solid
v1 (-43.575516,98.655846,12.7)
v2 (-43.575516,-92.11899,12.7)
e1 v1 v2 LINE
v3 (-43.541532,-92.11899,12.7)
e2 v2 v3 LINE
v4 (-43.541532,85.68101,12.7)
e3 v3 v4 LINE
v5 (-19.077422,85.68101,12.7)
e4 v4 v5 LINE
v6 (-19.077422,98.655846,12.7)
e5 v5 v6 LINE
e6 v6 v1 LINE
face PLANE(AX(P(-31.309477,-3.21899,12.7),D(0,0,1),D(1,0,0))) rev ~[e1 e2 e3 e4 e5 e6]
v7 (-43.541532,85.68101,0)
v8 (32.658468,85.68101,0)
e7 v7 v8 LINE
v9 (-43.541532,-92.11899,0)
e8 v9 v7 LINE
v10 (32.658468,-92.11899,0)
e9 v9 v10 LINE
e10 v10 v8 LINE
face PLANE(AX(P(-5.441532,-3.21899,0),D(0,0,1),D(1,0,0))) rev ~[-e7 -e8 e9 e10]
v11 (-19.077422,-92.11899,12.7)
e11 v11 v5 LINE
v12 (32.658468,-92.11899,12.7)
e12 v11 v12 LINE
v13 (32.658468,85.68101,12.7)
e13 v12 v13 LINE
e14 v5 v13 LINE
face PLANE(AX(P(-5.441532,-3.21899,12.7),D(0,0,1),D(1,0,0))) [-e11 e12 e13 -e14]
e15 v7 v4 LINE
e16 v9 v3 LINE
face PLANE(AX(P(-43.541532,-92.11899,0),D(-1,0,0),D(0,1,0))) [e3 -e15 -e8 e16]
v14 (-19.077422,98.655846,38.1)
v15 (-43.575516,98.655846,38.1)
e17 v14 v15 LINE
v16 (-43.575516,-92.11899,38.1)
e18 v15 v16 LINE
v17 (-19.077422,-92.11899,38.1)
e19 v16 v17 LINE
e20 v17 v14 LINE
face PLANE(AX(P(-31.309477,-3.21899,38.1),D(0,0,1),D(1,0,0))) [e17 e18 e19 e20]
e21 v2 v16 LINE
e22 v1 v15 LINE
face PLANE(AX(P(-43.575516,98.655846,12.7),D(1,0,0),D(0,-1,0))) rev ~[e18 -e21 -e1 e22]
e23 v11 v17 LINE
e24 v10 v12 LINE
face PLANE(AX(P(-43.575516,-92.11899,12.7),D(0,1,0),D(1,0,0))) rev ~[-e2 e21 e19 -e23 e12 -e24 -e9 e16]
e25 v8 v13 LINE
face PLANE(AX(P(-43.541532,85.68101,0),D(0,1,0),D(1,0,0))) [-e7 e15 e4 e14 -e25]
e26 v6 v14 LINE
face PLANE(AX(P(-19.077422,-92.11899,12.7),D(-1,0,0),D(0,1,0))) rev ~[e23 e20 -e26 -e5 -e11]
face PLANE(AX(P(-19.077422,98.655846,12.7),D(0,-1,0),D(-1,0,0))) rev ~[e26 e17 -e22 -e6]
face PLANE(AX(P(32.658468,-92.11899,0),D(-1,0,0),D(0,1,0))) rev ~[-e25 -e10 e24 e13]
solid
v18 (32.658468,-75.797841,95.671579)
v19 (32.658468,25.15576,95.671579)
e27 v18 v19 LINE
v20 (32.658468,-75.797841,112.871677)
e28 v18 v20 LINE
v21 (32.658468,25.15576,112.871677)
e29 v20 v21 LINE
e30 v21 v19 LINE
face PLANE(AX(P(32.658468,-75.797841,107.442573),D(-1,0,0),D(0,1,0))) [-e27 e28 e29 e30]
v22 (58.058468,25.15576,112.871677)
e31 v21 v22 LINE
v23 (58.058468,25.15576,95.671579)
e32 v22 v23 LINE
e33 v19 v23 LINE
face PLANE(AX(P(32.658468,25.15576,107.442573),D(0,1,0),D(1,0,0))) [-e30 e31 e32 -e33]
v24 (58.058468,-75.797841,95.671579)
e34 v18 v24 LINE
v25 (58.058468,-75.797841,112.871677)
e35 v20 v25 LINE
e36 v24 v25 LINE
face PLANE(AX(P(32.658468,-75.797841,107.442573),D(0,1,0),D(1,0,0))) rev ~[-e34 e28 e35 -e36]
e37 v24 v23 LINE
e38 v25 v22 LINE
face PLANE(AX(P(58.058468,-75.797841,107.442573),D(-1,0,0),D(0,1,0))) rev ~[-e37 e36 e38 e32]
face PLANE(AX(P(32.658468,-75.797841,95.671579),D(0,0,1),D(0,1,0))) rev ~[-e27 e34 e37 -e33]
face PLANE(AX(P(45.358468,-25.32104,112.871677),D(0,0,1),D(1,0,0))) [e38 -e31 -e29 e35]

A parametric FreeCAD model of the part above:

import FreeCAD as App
import Part
import Sketcher

V = App.Vector
Q = App.Units.Quantity


def add_polygon(sketch, points):
    """Adds a closed chain of lines whose ends are joined by coincident constraints."""
    first, n = sketch.GeometryCount, len(points)
    for a, b in zip(points, points[1:] + points[:1]):
        sketch.addGeometry(Part.LineSegment(App.Vector(*a, 0), App.Vector(*b, 0)), False)
    for i in range(n):
        sketch.addConstraint(Sketcher.Constraint("Coincident", first + i, 2, first + (i + 1) % n, 1))

doc = App.newDocument("Part")
body = doc.addObject("PartDesign::Body", "Body")

# Sketch on XY plane
sketch1 = body.newObject("Sketcher::SketchObject", "Sketch")
sketch1.AttachmentSupport = (doc.getObject("XY_Plane"), [""])
sketch1.MapMode = "FlatFace"
add_polygon(sketch1, [(-43.541532, 85.68101), (-43.541532, -92.11899), (32.658468, -92.11899), (32.658468, 85.68101)])  # lines 0-3
sketch1.addConstraint([
    Sketcher.Constraint("Vertical", 0),
    Sketcher.Constraint("Horizontal", 1),
    Sketcher.Constraint("Vertical", 2),
    Sketcher.Constraint("Horizontal", 3),
    Sketcher.Constraint("DistanceX", 1, 1, 1, 2, Q("3 in")),
    Sketcher.Constraint("DistanceY", 0, 2, 0, 1, Q("7 in")),
    Sketcher.Constraint("DistanceX", 0, 2, -1, 1, 43.541532),
    Sketcher.Constraint("DistanceY", 0, 2, -1, 1, 92.11899),
])
pad1 = body.newObject("PartDesign::Pad", "Pad")
pad1.Profile = sketch1
pad1.Length = Q("0.5 in")

# Sketch on XY plane
sketch2 = body.newObject("Sketcher::SketchObject", "Sketch001")
sketch2.AttachmentSupport = (doc.getObject("XY_Plane"), [""])
sketch2.MapMode = "FlatFace"
sketch2.AttachmentOffset = App.Placement(V(0, 0, 0.5 * 25.4), App.Rotation())
add_polygon(sketch2, [(-19.077422, -92.11899), (-19.077422, 98.655846), (-43.575516, 98.655846), (-43.575516, -92.11899)])  # lines 0-3
sketch2.addConstraint([
    Sketcher.Constraint("Vertical", 0),
    Sketcher.Constraint("Horizontal", 1),
    Sketcher.Constraint("Vertical", 2),
    Sketcher.Constraint("Horizontal", 3),
    Sketcher.Constraint("DistanceX", 1, 2, 1, 1, 24.498094),
    Sketcher.Constraint("DistanceY", 0, 1, 0, 2, 190.774836),
    Sketcher.Constraint("DistanceY", 2, 2, -1, 1, 92.11899),
    Sketcher.Constraint("DistanceX", 0, 2, -1, 1, 19.077422),
])
pad2 = body.newObject("PartDesign::Pad", "Pad001")
pad2.Profile = sketch2
pad2.Length = Q("1 in")
body2 = doc.addObject("PartDesign::Body", "Body001")

# Sketch on YZ plane
sketch3 = body2.newObject("Sketcher::SketchObject", "Sketch002")
sketch3.AttachmentSupport = (doc.getObject("YZ_Plane001"), [""])
sketch3.MapMode = "FlatFace"
sketch3.AttachmentOffset = App.Placement(V(0, 0, 32.658468), App.Rotation())
add_polygon(sketch3, [(-75.797841, 107.442573), (-75.797841, 95.671579), (25.15576, 95.671579), (25.15576, 107.442573)])  # lines 0-3
sketch3.addConstraint([
    Sketcher.Constraint("Vertical", 0),
    Sketcher.Constraint("Horizontal", 1),
    Sketcher.Constraint("Vertical", 2),
    Sketcher.Constraint("Horizontal", 3),
    Sketcher.Constraint("DistanceX", 1, 1, 1, 2, 100.953601),
    Sketcher.Constraint("DistanceY", 0, 2, 0, 1, 11.770993),
    Sketcher.Constraint("DistanceX", 0, 2, -1, 1, 75.797841),
    Sketcher.Constraint("DistanceY", -1, 1, 0, 2, 95.671579),
])
pad3 = body2.newObject("PartDesign::Pad", "Pad002")
pad3.Profile = sketch3
pad3.Length = Q("1 in")

# Sketch on XY plane
sketch4 = body2.newObject("Sketcher::SketchObject", "Sketch003")
sketch4.AttachmentSupport = (doc.getObject("XY_Plane001"), [""])
sketch4.MapMode = "FlatFace"
sketch4.AttachmentOffset = App.Placement(V(0, 0, 107.442573), App.Rotation())
add_polygon(sketch4, [(32.658468, 25.15576), (32.658468, -75.797841), (58.058468, -75.797841), (58.058468, 25.15576)])  # lines 0-3
sketch4.addConstraint([
    Sketcher.Constraint("Vertical", 0),
    Sketcher.Constraint("Horizontal", 1),
    Sketcher.Constraint("Vertical", 2),
    Sketcher.Constraint("Horizontal", 3),
    Sketcher.Constraint("DistanceX", 1, 1, 1, 2, Q("1 in")),
    Sketcher.Constraint("DistanceY", 0, 2, 0, 1, 100.953601),
    Sketcher.Constraint("DistanceX", -1, 1, 0, 2, 32.658468),
    Sketcher.Constraint("DistanceY", 0, 2, -1, 1, 75.797841),
])
pad4 = body2.newObject("PartDesign::Pad", "Pad003")
pad4.Profile = sketch4
pad4.Length = 5.429104

doc.recompute()
